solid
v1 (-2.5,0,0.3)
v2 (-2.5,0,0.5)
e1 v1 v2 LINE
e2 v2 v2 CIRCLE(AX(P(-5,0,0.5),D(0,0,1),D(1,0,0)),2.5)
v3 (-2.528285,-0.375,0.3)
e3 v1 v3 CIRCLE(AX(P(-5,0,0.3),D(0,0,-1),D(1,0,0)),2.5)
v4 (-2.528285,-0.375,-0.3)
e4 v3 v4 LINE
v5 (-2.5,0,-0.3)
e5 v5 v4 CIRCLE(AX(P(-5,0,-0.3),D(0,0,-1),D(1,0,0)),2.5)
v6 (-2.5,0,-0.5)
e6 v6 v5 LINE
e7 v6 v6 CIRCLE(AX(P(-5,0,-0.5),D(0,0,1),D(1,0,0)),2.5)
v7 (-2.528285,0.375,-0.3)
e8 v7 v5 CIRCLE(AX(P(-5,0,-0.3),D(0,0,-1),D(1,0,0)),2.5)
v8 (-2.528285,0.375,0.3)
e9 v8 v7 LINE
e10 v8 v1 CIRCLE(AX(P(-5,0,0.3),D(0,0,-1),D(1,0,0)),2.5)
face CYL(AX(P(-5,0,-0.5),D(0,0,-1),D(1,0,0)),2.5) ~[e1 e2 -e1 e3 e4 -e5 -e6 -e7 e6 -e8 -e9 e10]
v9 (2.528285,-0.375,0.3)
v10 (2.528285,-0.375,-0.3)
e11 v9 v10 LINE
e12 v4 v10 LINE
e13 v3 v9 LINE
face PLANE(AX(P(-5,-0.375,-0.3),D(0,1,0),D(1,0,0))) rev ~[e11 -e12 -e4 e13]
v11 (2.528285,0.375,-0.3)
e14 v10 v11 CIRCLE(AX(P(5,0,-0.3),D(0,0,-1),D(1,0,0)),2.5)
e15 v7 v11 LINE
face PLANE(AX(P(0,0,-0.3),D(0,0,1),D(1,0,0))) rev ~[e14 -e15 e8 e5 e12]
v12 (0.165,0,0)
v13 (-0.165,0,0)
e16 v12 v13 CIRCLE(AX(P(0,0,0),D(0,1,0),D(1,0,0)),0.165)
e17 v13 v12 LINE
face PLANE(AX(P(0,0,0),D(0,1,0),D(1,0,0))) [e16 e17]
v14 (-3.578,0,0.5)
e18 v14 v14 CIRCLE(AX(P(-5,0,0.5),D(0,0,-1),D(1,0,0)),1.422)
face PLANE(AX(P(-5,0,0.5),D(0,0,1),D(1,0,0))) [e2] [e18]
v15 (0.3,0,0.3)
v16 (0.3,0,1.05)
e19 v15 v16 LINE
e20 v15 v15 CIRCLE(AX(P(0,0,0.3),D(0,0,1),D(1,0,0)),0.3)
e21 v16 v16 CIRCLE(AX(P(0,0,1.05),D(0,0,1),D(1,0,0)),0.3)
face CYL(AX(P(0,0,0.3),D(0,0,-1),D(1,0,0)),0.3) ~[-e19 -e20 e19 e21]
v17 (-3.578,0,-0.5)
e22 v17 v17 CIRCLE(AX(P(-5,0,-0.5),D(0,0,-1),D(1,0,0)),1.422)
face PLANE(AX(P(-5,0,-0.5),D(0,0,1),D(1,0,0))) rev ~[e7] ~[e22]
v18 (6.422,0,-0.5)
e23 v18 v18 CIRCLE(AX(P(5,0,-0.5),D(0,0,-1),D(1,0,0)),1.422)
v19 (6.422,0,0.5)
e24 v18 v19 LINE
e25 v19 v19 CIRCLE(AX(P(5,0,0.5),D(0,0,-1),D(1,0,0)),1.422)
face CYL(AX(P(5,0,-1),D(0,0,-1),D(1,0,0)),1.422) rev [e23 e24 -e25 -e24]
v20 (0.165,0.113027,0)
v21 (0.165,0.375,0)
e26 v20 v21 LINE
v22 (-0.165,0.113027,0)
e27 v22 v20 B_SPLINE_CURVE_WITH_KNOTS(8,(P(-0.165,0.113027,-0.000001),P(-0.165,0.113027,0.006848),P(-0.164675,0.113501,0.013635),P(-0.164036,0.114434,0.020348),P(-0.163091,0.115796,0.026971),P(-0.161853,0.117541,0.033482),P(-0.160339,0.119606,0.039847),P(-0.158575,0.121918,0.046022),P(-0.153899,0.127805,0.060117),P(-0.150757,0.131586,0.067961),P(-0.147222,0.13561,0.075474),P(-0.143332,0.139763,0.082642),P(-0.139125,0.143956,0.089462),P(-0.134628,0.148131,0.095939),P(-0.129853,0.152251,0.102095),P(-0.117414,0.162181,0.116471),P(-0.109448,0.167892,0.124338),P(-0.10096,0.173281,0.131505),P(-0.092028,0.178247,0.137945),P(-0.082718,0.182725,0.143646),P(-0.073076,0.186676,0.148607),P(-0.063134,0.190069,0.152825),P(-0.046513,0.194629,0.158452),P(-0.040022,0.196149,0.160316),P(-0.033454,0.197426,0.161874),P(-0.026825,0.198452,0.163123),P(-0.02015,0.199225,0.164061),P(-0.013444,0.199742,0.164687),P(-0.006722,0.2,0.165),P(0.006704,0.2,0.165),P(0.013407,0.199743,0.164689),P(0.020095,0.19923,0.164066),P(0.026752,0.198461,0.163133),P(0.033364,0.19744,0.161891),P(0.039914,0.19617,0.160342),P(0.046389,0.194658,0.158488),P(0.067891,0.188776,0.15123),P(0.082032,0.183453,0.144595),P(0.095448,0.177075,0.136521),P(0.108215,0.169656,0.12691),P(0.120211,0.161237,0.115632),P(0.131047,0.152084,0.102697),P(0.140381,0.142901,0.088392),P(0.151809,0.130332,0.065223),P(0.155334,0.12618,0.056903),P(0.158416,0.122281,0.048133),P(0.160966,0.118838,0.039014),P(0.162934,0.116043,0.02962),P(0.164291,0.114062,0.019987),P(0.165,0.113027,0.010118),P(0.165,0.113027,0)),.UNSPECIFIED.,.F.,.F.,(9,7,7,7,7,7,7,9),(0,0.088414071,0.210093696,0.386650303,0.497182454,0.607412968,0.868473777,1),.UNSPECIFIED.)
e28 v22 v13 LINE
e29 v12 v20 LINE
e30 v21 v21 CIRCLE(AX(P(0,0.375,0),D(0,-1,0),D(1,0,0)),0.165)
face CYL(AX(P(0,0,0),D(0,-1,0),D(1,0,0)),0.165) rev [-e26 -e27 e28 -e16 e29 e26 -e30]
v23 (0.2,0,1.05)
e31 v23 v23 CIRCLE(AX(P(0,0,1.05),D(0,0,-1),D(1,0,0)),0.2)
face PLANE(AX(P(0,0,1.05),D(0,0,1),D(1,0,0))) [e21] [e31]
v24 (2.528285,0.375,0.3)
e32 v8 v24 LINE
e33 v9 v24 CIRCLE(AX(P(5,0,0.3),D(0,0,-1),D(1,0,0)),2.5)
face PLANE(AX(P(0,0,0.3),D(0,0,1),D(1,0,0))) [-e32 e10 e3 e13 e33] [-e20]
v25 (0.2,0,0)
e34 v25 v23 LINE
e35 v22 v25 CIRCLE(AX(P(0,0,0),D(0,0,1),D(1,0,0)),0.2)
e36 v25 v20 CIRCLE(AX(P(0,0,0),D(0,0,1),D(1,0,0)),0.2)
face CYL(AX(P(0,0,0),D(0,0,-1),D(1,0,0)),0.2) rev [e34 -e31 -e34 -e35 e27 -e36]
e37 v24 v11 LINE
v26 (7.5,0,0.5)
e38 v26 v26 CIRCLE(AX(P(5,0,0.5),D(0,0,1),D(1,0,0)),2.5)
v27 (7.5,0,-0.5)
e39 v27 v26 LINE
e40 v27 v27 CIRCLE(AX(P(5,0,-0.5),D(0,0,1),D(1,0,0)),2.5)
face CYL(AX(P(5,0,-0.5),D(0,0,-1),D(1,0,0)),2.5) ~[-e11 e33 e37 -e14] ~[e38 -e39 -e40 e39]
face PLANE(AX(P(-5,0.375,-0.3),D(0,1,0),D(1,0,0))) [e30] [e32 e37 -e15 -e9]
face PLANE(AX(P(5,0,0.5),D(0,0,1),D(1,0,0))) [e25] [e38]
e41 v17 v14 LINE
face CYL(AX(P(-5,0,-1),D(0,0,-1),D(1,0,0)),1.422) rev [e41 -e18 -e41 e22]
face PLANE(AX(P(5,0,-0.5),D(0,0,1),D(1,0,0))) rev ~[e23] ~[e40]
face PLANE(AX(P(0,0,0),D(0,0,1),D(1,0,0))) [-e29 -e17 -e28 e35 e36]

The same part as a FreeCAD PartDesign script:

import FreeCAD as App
import Part
import Sketcher

V = App.Vector
Q = App.Units.Quantity

doc = App.newDocument("Part")
params = doc.addObject("Spreadsheet::Sheet", "Params")
for row, (alias, value) in enumerate([
    ("sketch1_diameter", "0.4 mm"),
    ("pad1_length", "9 mm"),
    ("pad2_length", "2 mm"),
    ("pad3_length", "2 mm"),
    ("sketch4_diameter", "0.33 mm"),
    ("pad4_length", "8 mm"),
    ("sketch5_diameter", "5 mm"),
    ("pad5_length", "1 mm"),
    ("sketch6_diameter", "5 mm"),
    ("pad6_length", "1 mm"),
    ("sketch7_diameter", "0.6 mm"),
    ("pad7_length", "0.75 mm"),
    ("sketch8_width", "10 mm"),
    ("sketch8_height", "0.75 mm"),
    ("pad8_length", "0.6 mm"),
], start=1):
    params.set(f"A{row}", alias)
    params.set(f"B{row}", "=" + value)
    params.setAlias(f"B{row}", alias)

body = doc.addObject("PartDesign::Body", "Body")

sketch1 = body.newObject("Sketcher::SketchObject", "Sketch")
sketch1.AttachmentSupport = (doc.getObject("XY_Plane"), [""])
sketch1.MapMode = "FlatFace"
sketch1.addGeometry(Part.Circle(V(0, 0, 0), V(0, 0, 1), 0.2), False)
sketch1.addConstraint(Sketcher.Constraint("Coincident", 0, 3, -1, 1))
sketch1.addConstraint(Sketcher.Constraint("Diameter", 0, Q("0.4 mm")))
sketch1.setExpression("Constraints[1]", "Params.sketch1_diameter")
pad1 = body.newObject("PartDesign::Pad", "Pad")
pad1.Profile = sketch1
pad1.setExpression("Length", "Params.pad1_length")
body2 = doc.addObject("PartDesign::Body", "Body001")

sketch2 = body2.newObject("Sketcher::SketchObject", "Sketch001")
sketch2.AttachmentSupport = (doc.getObject("XY_Plane001"), [""])
sketch2.MapMode = "FlatFace"
sketch2.AttachmentOffset = App.Placement(V(0, 0, -1), App.Rotation())
sketch2.addGeometry(Part.Circle(V(-5, 0, 0), V(0, 0, 1), 1.4), False)
sketch2.addConstraint(Sketcher.Constraint("PointOnObject", 0, 3, -1))
sketch2.addConstraint(Sketcher.Constraint("Diameter", 0, Q("2.844 mm")))
sketch2.addConstraint(Sketcher.Constraint("DistanceX", 0, 3, -1, 1, Q("5 mm")))
pad2 = body2.newObject("PartDesign::Pad", "Pad001")
pad2.Profile = sketch2
pad2.setExpression("Length", "Params.pad2_length")
body3 = doc.addObject("PartDesign::Body", "Body002")

sketch3 = body3.newObject("Sketcher::SketchObject", "Sketch002")
sketch3.AttachmentSupport = (doc.getObject("XY_Plane002"), [""])
sketch3.MapMode = "FlatFace"
sketch3.AttachmentOffset = App.Placement(V(0, 0, -1), App.Rotation())
sketch3.addGeometry(Part.Circle(V(5, 0, 0), V(0, 0, 1), 1.4), False)
sketch3.addConstraint(Sketcher.Constraint("PointOnObject", 0, 3, -1))
sketch3.addConstraint(Sketcher.Constraint("Diameter", 0, Q("2.844 mm")))
sketch3.addConstraint(Sketcher.Constraint("DistanceX", -1, 1, 0, 3, Q("5 mm")))
pad3 = body3.newObject("PartDesign::Pad", "Pad002")
pad3.Profile = sketch3
pad3.setExpression("Length", "Params.pad3_length")
body4 = doc.addObject("PartDesign::Body", "Body003")
body4.AllowCompound = True

sketch4 = body4.newObject("Sketcher::SketchObject", "Sketch003")
sketch4.AttachmentSupport = (doc.getObject("XZ_Plane003"), [""])
sketch4.MapMode = "FlatFace"
sketch4.addGeometry(Part.Circle(V(0, 0, 0), V(0, 0, 1), 0.17), False)
sketch4.addConstraint(Sketcher.Constraint("Coincident", 0, 3, -1, 1))
sketch4.addConstraint(Sketcher.Constraint("Diameter", 0, Q("0.33 mm")))
sketch4.setExpression("Constraints[1]", "Params.sketch4_diameter")
pad4 = body4.newObject("PartDesign::Pad", "Pad003")
pad4.Profile = sketch4
pad4.setExpression("Length", "Params.pad4_length")
pad4.Reversed = True
doc.recompute()

boolean = body4.newObject("PartDesign::Boolean", "Boolean")
boolean.Type = "Fuse"
boolean.addObjects([body])
doc.recompute()

boolean2 = body4.newObject("PartDesign::Boolean", "Boolean001")
boolean2.Type = "Fuse"
boolean2.addObjects([body2])
doc.recompute()

boolean3 = body4.newObject("PartDesign::Boolean", "Boolean002")
boolean3.Type = "Fuse"
boolean3.addObjects([body3])
body5 = doc.addObject("PartDesign::Body", "Body004")

sketch5 = body5.newObject("Sketcher::SketchObject", "Sketch004")
sketch5.AttachmentSupport = (doc.getObject("XY_Plane004"), [""])
sketch5.MapMode = "FlatFace"
sketch5.AttachmentOffset = App.Placement(V(0, 0, -0.5), App.Rotation())
sketch5.addGeometry(Part.Circle(V(5, 0, 0), V(0, 0, 1), 2.5), False)
sketch5.addConstraint(Sketcher.Constraint("PointOnObject", 0, 3, -1))
sketch5.addConstraint(Sketcher.Constraint("Diameter", 0, Q("5 mm")))
sketch5.addConstraint(Sketcher.Constraint("DistanceX", -1, 1, 0, 3, Q("5 mm")))
sketch5.setExpression("Constraints[1]", "Params.sketch5_diameter")
pad5 = body5.newObject("PartDesign::Pad", "Pad004")
pad5.Profile = sketch5
pad5.setExpression("Length", "Params.pad5_length")
body6 = doc.addObject("PartDesign::Body", "Body005")

sketch6 = body6.newObject("Sketcher::SketchObject", "Sketch005")
sketch6.AttachmentSupport = (doc.getObject("XY_Plane005"), [""])
sketch6.MapMode = "FlatFace"
sketch6.AttachmentOffset = App.Placement(V(0, 0, -0.5), App.Rotation())
sketch6.addGeometry(Part.Circle(V(-5, 0, 0), V(0, 0, 1), 2.5), False)
sketch6.addConstraint(Sketcher.Constraint("PointOnObject", 0, 3, -1))
sketch6.addConstraint(Sketcher.Constraint("Diameter", 0, Q("5 mm")))
sketch6.addConstraint(Sketcher.Constraint("DistanceX", 0, 3, -1, 1, Q("5 mm")))
sketch6.setExpression("Constraints[1]", "Params.sketch6_diameter")
pad6 = body6.newObject("PartDesign::Pad", "Pad005")
pad6.Profile = sketch6
pad6.setExpression("Length", "Params.pad6_length")
body7 = doc.addObject("PartDesign::Body", "Body006")

sketch7 = body7.newObject("Sketcher::SketchObject", "Sketch006")
sketch7.AttachmentSupport = (doc.getObject("XY_Plane006"), [""])
sketch7.MapMode = "FlatFace"
sketch7.AttachmentOffset = App.Placement(V(0, 0, 0.3), App.Rotation())
sketch7.addGeometry(Part.Circle(V(0, 0, 0), V(0, 0, 1), 0.3), False)
sketch7.addConstraint(Sketcher.Constraint("Coincident", 0, 3, -1, 1))
sketch7.addConstraint(Sketcher.Constraint("Diameter", 0, Q("0.6 mm")))
sketch7.setExpression("Constraints[1]", "Params.sketch7_diameter")
pad7 = body7.newObject("PartDesign::Pad", "Pad006")
pad7.Profile = sketch7
pad7.setExpression("Length", "Params.pad7_length")
body8 = doc.addObject("PartDesign::Body", "Body007")

sketch8 = body8.newObject("Sketcher::SketchObject", "Sketch007")
sketch8.AttachmentSupport = (doc.getObject("XY_Plane007"), [""])
sketch8.MapMode = "FlatFace"
sketch8.AttachmentOffset = App.Placement(V(0, 0, -0.3), App.Rotation())
sketch8.addGeometry(Part.LineSegment(V(-5, 0.4, 0), V(-5, -0.4, 0)), False)
sketch8.addGeometry(Part.LineSegment(V(-5, -0.4, 0), V(5, -0.4, 0)), False)
sketch8.addGeometry(Part.LineSegment(V(5, -0.4, 0), V(5, 0.4, 0)), False)
sketch8.addGeometry(Part.LineSegment(V(5, 0.4, 0), V(-5, 0.4, 0)), False)
sketch8.addConstraint(Sketcher.Constraint("Coincident", 0, 2, 1, 1))
sketch8.addConstraint(Sketcher.Constraint("Coincident", 1, 2, 2, 1))
sketch8.addConstraint(Sketcher.Constraint("Coincident", 2, 2, 3, 1))
sketch8.addConstraint(Sketcher.Constraint("Coincident", 3, 2, 0, 1))
sketch8.addConstraint(Sketcher.Constraint("Vertical", 0))
sketch8.addConstraint(Sketcher.Constraint("Horizontal", 1))
sketch8.addConstraint(Sketcher.Constraint("Vertical", 2))
sketch8.addConstraint(Sketcher.Constraint("Horizontal", 3))
sketch8.addConstraint(Sketcher.Constraint("Symmetric", 0, 2, 2, 2, -1, 1))
sketch8.addConstraint(Sketcher.Constraint("DistanceX", 1, 1, 1, 2, Q("10 mm")))
sketch8.addConstraint(Sketcher.Constraint("DistanceY", 0, 2, 0, 1, Q("0.75 mm")))
sketch8.setExpression("Constraints[9]", "Params.sketch8_width")
sketch8.setExpression("Constraints[10]", "Params.sketch8_height")
pad8 = body8.newObject("PartDesign::Pad", "Pad007")
pad8.Profile = sketch8
pad8.setExpression("Length", "Params.pad8_length")
doc.recompute()

boolean4 = body8.newObject("PartDesign::Boolean", "Boolean003")
boolean4.Type = "Fuse"
boolean4.addObjects([body5])
doc.recompute()

boolean5 = body8.newObject("PartDesign::Boolean", "Boolean004")
boolean5.Type = "Fuse"
boolean5.addObjects([body6])
doc.recompute()

boolean6 = body8.newObject("PartDesign::Boolean", "Boolean005")
boolean6.Type = "Fuse"
boolean6.addObjects([body7])
doc.recompute()

boolean7 = body8.newObject("PartDesign::Boolean", "Boolean006")
boolean7.Type = "Cut"
boolean7.addObjects([body4])

doc.recompute()
